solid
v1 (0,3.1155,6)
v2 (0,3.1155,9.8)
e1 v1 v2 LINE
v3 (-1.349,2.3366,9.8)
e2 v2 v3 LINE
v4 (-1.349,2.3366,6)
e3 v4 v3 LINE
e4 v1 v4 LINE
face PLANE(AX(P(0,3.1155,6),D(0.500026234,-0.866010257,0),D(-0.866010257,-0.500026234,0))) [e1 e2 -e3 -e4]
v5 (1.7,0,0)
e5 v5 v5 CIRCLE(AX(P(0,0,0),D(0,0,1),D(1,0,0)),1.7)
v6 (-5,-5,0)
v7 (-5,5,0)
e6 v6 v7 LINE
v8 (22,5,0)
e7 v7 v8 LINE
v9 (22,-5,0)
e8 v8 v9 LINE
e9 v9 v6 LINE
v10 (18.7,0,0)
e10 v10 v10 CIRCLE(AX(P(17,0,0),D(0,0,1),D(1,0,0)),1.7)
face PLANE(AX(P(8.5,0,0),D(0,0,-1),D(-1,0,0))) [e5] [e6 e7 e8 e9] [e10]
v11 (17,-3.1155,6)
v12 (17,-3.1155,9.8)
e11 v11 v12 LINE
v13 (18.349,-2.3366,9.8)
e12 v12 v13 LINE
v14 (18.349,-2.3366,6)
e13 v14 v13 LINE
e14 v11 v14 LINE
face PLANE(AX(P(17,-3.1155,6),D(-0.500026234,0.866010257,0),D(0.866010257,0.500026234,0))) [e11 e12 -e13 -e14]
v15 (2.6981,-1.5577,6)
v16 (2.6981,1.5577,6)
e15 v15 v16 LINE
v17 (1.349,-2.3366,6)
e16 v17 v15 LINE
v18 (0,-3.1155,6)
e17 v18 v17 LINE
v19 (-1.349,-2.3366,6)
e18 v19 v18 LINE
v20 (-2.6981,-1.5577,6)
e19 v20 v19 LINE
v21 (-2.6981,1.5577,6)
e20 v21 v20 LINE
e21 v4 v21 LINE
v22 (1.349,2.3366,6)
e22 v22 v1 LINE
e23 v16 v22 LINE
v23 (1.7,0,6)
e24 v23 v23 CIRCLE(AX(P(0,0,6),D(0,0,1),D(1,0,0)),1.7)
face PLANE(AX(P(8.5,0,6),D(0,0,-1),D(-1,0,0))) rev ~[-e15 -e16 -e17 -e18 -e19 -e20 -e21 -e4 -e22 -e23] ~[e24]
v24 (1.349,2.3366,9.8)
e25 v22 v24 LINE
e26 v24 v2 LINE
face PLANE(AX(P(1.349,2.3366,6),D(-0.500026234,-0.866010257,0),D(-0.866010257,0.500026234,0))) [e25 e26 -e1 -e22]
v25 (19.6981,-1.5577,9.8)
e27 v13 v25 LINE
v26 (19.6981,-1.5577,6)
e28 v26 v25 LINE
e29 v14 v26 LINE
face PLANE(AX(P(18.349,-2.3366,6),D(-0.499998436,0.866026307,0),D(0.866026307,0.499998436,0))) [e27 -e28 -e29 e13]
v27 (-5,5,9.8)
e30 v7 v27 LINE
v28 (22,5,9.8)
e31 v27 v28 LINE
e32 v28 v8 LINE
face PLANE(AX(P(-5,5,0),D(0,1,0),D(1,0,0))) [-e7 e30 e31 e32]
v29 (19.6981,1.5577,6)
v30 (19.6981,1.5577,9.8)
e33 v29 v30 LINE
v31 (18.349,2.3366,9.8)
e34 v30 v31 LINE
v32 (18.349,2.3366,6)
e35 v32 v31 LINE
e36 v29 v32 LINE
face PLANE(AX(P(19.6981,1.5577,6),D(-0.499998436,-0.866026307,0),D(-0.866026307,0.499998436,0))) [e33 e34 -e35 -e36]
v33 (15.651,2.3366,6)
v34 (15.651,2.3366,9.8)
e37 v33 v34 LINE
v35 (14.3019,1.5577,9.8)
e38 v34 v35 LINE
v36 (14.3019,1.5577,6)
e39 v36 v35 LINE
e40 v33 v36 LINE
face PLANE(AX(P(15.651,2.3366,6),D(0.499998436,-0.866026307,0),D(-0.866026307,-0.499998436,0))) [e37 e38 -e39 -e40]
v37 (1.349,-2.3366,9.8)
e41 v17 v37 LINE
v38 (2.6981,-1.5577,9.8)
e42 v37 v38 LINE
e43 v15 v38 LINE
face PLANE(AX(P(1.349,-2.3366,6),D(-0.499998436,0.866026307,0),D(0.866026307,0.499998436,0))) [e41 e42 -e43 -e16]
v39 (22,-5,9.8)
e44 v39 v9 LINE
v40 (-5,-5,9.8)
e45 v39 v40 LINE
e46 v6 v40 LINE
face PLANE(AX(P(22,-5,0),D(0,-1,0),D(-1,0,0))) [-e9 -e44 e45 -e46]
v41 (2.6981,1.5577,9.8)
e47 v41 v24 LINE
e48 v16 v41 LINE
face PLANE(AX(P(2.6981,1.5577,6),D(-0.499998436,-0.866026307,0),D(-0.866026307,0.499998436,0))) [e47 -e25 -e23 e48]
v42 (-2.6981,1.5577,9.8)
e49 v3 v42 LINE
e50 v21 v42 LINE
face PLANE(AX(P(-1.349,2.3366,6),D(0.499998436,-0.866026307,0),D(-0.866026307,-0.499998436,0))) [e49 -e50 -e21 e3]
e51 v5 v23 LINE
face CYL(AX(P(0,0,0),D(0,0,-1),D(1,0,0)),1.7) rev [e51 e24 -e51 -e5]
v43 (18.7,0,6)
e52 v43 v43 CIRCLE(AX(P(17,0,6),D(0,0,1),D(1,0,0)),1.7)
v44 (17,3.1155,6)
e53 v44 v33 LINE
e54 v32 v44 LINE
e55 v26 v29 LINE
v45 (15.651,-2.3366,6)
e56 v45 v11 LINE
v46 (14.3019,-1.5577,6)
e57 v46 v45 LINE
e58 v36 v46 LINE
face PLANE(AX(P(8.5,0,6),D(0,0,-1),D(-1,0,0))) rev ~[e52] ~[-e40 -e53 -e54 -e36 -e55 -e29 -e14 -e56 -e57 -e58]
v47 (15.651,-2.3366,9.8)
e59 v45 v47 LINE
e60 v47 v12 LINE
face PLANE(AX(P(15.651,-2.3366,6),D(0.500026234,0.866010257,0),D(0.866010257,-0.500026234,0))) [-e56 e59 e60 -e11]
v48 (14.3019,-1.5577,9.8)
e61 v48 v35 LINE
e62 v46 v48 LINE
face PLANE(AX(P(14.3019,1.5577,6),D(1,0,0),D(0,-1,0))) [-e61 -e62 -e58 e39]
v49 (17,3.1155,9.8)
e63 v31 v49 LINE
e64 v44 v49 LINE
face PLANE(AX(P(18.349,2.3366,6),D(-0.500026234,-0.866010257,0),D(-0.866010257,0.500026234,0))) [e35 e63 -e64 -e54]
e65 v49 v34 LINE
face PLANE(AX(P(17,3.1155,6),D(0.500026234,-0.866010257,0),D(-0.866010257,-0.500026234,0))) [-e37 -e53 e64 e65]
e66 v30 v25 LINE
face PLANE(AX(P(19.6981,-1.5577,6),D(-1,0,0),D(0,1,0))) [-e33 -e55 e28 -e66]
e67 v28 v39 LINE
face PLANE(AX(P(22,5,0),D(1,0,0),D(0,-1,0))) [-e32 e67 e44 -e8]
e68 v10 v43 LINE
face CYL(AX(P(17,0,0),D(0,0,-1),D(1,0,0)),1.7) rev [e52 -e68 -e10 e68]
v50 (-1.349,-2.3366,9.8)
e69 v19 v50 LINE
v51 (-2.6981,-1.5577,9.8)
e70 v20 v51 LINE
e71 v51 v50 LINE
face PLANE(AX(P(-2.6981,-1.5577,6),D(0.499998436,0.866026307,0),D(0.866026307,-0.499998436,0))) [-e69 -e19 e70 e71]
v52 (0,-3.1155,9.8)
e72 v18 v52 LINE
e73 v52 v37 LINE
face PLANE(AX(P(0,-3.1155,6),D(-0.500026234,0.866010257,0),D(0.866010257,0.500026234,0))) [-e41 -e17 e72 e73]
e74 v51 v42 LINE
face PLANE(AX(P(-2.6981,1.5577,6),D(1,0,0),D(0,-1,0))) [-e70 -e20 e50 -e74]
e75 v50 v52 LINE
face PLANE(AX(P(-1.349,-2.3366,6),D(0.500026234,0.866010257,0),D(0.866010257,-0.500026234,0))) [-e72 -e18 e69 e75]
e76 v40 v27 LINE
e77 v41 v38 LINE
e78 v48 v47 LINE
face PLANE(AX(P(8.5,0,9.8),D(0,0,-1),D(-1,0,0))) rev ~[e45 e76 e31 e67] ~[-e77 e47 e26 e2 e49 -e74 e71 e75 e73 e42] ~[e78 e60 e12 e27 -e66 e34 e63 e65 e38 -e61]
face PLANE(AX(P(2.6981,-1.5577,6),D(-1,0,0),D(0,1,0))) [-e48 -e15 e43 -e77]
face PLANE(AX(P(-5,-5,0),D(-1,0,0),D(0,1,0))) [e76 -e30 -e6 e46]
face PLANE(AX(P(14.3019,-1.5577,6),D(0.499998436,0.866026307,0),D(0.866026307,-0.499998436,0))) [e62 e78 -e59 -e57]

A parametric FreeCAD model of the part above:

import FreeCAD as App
import Part
import Sketcher
from FreeCAD import Vector
Q = App.Units.Quantity

doc = App.newDocument("Part")
body = doc.addObject("PartDesign::Body", "Body")

sketch1 = body.newObject("Sketcher::SketchObject", "Sketch")
sketch1.AttachmentSupport = (doc.getObject("XY_Plane"), [""])
sketch1.MapMode = "FlatFace"
sketch1.addGeometry(Part.LineSegment(Vector(22, 5, 0), Vector(-5, 5, 0)), False)
sketch1.addGeometry(Part.LineSegment(Vector(-5, 5, 0), Vector(-5, -5, 0)), False)
sketch1.addGeometry(Part.LineSegment(Vector(-5, -5, 0), Vector(22, -5, 0)), False)
sketch1.addGeometry(Part.LineSegment(Vector(22, -5, 0), Vector(22, 5, 0)), False)
sketch1.addGeometry(Part.Circle(Vector(0, 0, 0), Vector(0, 0, 1), 1.7), False)
sketch1.addGeometry(Part.Circle(Vector(17, 0, 0), Vector(0, 0, 1), 1.7), False)
sketch1.addConstraint(Sketcher.Constraint("Coincident", 0, 2, 1, 1))
sketch1.addConstraint(Sketcher.Constraint("Coincident", 1, 2, 2, 1))
sketch1.addConstraint(Sketcher.Constraint("Coincident", 2, 2, 3, 1))
sketch1.addConstraint(Sketcher.Constraint("Coincident", 3, 2, 0, 1))
sketch1.addConstraint(Sketcher.Constraint("Horizontal", 0))
sketch1.addConstraint(Sketcher.Constraint("Vertical", 1))
sketch1.addConstraint(Sketcher.Constraint("Horizontal", 2))
sketch1.addConstraint(Sketcher.Constraint("Vertical", 3))
sketch1.addConstraint(Sketcher.Constraint("Coincident", 4, 3, -1, 1))
sketch1.addConstraint(Sketcher.Constraint("Equal", 4, 5))
sketch1.addConstraint(Sketcher.Constraint("PointOnObject", 5, 3, -1))
sketch1.addConstraint(Sketcher.Constraint("Diameter", 4, 3.4))
sketch1.addConstraint(Sketcher.Constraint("DistanceX", 0, 2, 0, 1, 27.0))
sketch1.addConstraint(Sketcher.Constraint("DistanceY", 1, 2, 1, 1, 10.0))
sketch1.addConstraint(Sketcher.Constraint("DistanceX", -1, 1, 5, 3, 17.0))
sketch1.addConstraint(Sketcher.Constraint("DistanceX", 0, 2, -1, 1, 5.0))
sketch1.addConstraint(Sketcher.Constraint("DistanceY", -1, 1, 0, 2, 5.0))
pad1 = body.newObject("PartDesign::Pad", "Pad")
pad1.Profile = sketch1
pad1.Length = 6

sketch2 = body.newObject("Sketcher::SketchObject", "Sketch001")
sketch2.AttachmentSupport = (doc.getObject("XY_Plane"), [""])
sketch2.MapMode = "FlatFace"
sketch2.AttachmentOffset = App.Placement(Vector(0, 0, 6), App.Rotation())
sketch2.addGeometry(Part.LineSegment(Vector(-5, 5, 0), Vector(-5, -5, 0)), False)
sketch2.addGeometry(Part.LineSegment(Vector(-5, -5, 0), Vector(22, -5, 0)), False)
sketch2.addGeometry(Part.LineSegment(Vector(22, -5, 0), Vector(22, 5, 0)), False)
sketch2.addGeometry(Part.LineSegment(Vector(22, 5, 0), Vector(-5, 5, 0)), False)
sketch2.addGeometry(Part.LineSegment(Vector(1.3, 2.3, 0), Vector(2.7, 1.6, 0)), False)
sketch2.addGeometry(Part.LineSegment(Vector(2.7, 1.6, 0), Vector(2.7, -1.6, 0)), False)
sketch2.addGeometry(Part.LineSegment(Vector(2.7, -1.6, 0), Vector(1.3, -2.3, 0)), False)
sketch2.addGeometry(Part.LineSegment(Vector(1.3, -2.3, 0), Vector(0, -3.1, 0)), False)
sketch2.addGeometry(Part.LineSegment(Vector(0, -3.1, 0), Vector(-1.3, -2.3, 0)), False)
sketch2.addGeometry(Part.LineSegment(Vector(-1.3, -2.3, 0), Vector(-2.7, -1.6, 0)), False)
sketch2.addGeometry(Part.LineSegment(Vector(-2.7, -1.6, 0), Vector(-2.7, 1.6, 0)), False)
sketch2.addGeometry(Part.LineSegment(Vector(-2.7, 1.6, 0), Vector(-1.3, 2.3, 0)), False)
sketch2.addGeometry(Part.LineSegment(Vector(-1.3, 2.3, 0), Vector(0, 3.1, 0)), False)
sketch2.addGeometry(Part.LineSegment(Vector(0, 3.1, 0), Vector(1.3, 2.3, 0)), False)
sketch2.addGeometry(Part.LineSegment(Vector(18.3, 2.3, 0), Vector(19.7, 1.6, 0)), False)
sketch2.addGeometry(Part.LineSegment(Vector(19.7, 1.6, 0), Vector(19.7, -1.6, 0)), False)
sketch2.addGeometry(Part.LineSegment(Vector(19.7, -1.6, 0), Vector(18.3, -2.3, 0)), False)
sketch2.addGeometry(Part.LineSegment(Vector(18.3, -2.3, 0), Vector(17, -3.1, 0)), False)
sketch2.addGeometry(Part.LineSegment(Vector(17, -3.1, 0), Vector(15.7, -2.3, 0)), False)
sketch2.addGeometry(Part.LineSegment(Vector(15.7, -2.3, 0), Vector(14.3, -1.6, 0)), False)
sketch2.addGeometry(Part.LineSegment(Vector(14.3, -1.6, 0), Vector(14.3, 1.6, 0)), False)
sketch2.addGeometry(Part.LineSegment(Vector(14.3, 1.6, 0), Vector(15.7, 2.3, 0)), False)
sketch2.addGeometry(Part.LineSegment(Vector(15.7, 2.3, 0), Vector(17, 3.1, 0)), False)
sketch2.addGeometry(Part.LineSegment(Vector(17, 3.1, 0), Vector(18.3, 2.3, 0)), False)
sketch2.addConstraint(Sketcher.Constraint("Coincident", 0, 2, 1, 1))
sketch2.addConstraint(Sketcher.Constraint("Coincident", 1, 2, 2, 1))
sketch2.addConstraint(Sketcher.Constraint("Coincident", 2, 2, 3, 1))
sketch2.addConstraint(Sketcher.Constraint("Coincident", 3, 2, 0, 1))
sketch2.addConstraint(Sketcher.Constraint("Coincident", 4, 2, 5, 1))
sketch2.addConstraint(Sketcher.Constraint("Coincident", 5, 2, 6, 1))
sketch2.addConstraint(Sketcher.Constraint("Coincident", 6, 2, 7, 1))
sketch2.addConstraint(Sketcher.Constraint("Coincident", 7, 2, 8, 1))
sketch2.addConstraint(Sketcher.Constraint("Coincident", 8, 2, 9, 1))
sketch2.addConstraint(Sketcher.Constraint("Coincident", 9, 2, 10, 1))
sketch2.addConstraint(Sketcher.Constraint("Coincident", 10, 2, 11, 1))
sketch2.addConstraint(Sketcher.Constraint("Coincident", 11, 2, 12, 1))
sketch2.addConstraint(Sketcher.Constraint("Coincident", 12, 2, 13, 1))
sketch2.addConstraint(Sketcher.Constraint("Coincident", 13, 2, 4, 1))
sketch2.addConstraint(Sketcher.Constraint("Coincident", 14, 2, 15, 1))
sketch2.addConstraint(Sketcher.Constraint("Coincident", 15, 2, 16, 1))
sketch2.addConstraint(Sketcher.Constraint("Coincident", 16, 2, 17, 1))
sketch2.addConstraint(Sketcher.Constraint("Coincident", 17, 2, 18, 1))
sketch2.addConstraint(Sketcher.Constraint("Coincident", 18, 2, 19, 1))
sketch2.addConstraint(Sketcher.Constraint("Coincident", 19, 2, 20, 1))
sketch2.addConstraint(Sketcher.Constraint("Coincident", 20, 2, 21, 1))
sketch2.addConstraint(Sketcher.Constraint("Coincident", 21, 2, 22, 1))
sketch2.addConstraint(Sketcher.Constraint("Coincident", 22, 2, 23, 1))
sketch2.addConstraint(Sketcher.Constraint("Coincident", 23, 2, 14, 1))
sketch2.addConstraint(Sketcher.Constraint("Vertical", 0))
sketch2.addConstraint(Sketcher.Constraint("Horizontal", 1))
sketch2.addConstraint(Sketcher.Constraint("Vertical", 2))
sketch2.addConstraint(Sketcher.Constraint("Horizontal", 3))
sketch2.addConstraint(Sketcher.Constraint("Vertical", 5))
sketch2.addConstraint(Sketcher.Constraint("Vertical", 10))
sketch2.addConstraint(Sketcher.Constraint("Vertical", 15))
sketch2.addConstraint(Sketcher.Constraint("Vertical", 20))
sketch2.addConstraint(Sketcher.Constraint("Symmetric", 4, 2, 9, 2, -1, 1))
sketch2.addConstraint(Sketcher.Constraint("Symmetric", 6, 2, 11, 2, -1, 1))
sketch2.addConstraint(Sketcher.Constraint("Symmetric", 7, 2, 12, 2, -1, 1))
sketch2.addConstraint(Sketcher.Constraint("Symmetric", 8, 2, 13, 2, -1, 1))
sketch2.addConstraint(Sketcher.Constraint("Symmetric", 6, 2, 8, 2, -2))
sketch2.addConstraint(Sketcher.Constraint("Symmetric", 18, 2, 21, 2, -1))
sketch2.addConstraint(Sketcher.Constraint("Symmetric", 17, 2, 22, 2, -1))
sketch2.addConstraint(Sketcher.Constraint("Symmetric", 16, 2, 23, 2, -1))
sketch2.addConstraint(Sketcher.Constraint("PointOnObject", 7, 2, -2))
sketch2.addConstraint(Sketcher.Constraint("Parallel", 6, 7))
sketch2.addConstraint(Sketcher.Constraint("Parallel", 4, 8))
sketch2.addConstraint(Sketcher.Constraint("Parallel", 7, 11))
sketch2.addConstraint(Sketcher.Constraint("Parallel", 13, 14))
sketch2.addConstraint(Sketcher.Constraint("Parallel", 12, 16))
sketch2.addConstraint(Sketcher.Constraint("Parallel", 16, 17))
sketch2.addConstraint(Sketcher.Constraint("Parallel", 14, 18))
sketch2.addConstraint(Sketcher.Constraint("Parallel", 18, 19))
sketch2.addConstraint(Sketcher.Constraint("Parallel", 17, 21))
sketch2.addConstraint(Sketcher.Constraint("Horizontal", 10, 2, 14, 2))
sketch2.addConstraint(Sketcher.Constraint("Horizontal", 8, 2, 16, 2))
sketch2.addConstraint(Sketcher.Constraint("Horizontal", 7, 2, 17, 2))
sketch2.addConstraint(Sketcher.Constraint("Horizontal", 16, 2, 18, 2))
sketch2.addConstraint(Sketcher.Constraint("Horizontal", 15, 2, 19, 2))
sketch2.addConstraint(Sketcher.Constraint("Equal", 6, 7))
sketch2.addConstraint(Sketcher.Constraint("DistanceX", 1, 1, 1, 2, 27.0))
sketch2.addConstraint(Sketcher.Constraint("DistanceY", 0, 2, 0, 1, 10.0))
sketch2.addConstraint(Sketcher.Constraint("Angle", 4, Q("-30 deg")))
sketch2.addConstraint(Sketcher.Constraint("DistanceX", 0, 2, -1, 1, 5.0))
sketch2.addConstraint(Sketcher.Constraint("DistanceY", 0, 2, -1, 1, 5.0))
sketch2.addConstraint(Sketcher.Constraint("DistanceX", -1, 1, 17, 2, 17.0))
sketch2.addConstraint(Sketcher.Constraint("DistanceY", 5, 2, 5, 1, 3.1154))
sketch2.addConstraint(Sketcher.Constraint("DistanceX", -1, 1, 4, 2, 2.698))
pad2 = body.newObject("PartDesign::Pad", "Pad001")
pad2.Profile = sketch2
pad2.Length = 3.8

doc.recompute()
